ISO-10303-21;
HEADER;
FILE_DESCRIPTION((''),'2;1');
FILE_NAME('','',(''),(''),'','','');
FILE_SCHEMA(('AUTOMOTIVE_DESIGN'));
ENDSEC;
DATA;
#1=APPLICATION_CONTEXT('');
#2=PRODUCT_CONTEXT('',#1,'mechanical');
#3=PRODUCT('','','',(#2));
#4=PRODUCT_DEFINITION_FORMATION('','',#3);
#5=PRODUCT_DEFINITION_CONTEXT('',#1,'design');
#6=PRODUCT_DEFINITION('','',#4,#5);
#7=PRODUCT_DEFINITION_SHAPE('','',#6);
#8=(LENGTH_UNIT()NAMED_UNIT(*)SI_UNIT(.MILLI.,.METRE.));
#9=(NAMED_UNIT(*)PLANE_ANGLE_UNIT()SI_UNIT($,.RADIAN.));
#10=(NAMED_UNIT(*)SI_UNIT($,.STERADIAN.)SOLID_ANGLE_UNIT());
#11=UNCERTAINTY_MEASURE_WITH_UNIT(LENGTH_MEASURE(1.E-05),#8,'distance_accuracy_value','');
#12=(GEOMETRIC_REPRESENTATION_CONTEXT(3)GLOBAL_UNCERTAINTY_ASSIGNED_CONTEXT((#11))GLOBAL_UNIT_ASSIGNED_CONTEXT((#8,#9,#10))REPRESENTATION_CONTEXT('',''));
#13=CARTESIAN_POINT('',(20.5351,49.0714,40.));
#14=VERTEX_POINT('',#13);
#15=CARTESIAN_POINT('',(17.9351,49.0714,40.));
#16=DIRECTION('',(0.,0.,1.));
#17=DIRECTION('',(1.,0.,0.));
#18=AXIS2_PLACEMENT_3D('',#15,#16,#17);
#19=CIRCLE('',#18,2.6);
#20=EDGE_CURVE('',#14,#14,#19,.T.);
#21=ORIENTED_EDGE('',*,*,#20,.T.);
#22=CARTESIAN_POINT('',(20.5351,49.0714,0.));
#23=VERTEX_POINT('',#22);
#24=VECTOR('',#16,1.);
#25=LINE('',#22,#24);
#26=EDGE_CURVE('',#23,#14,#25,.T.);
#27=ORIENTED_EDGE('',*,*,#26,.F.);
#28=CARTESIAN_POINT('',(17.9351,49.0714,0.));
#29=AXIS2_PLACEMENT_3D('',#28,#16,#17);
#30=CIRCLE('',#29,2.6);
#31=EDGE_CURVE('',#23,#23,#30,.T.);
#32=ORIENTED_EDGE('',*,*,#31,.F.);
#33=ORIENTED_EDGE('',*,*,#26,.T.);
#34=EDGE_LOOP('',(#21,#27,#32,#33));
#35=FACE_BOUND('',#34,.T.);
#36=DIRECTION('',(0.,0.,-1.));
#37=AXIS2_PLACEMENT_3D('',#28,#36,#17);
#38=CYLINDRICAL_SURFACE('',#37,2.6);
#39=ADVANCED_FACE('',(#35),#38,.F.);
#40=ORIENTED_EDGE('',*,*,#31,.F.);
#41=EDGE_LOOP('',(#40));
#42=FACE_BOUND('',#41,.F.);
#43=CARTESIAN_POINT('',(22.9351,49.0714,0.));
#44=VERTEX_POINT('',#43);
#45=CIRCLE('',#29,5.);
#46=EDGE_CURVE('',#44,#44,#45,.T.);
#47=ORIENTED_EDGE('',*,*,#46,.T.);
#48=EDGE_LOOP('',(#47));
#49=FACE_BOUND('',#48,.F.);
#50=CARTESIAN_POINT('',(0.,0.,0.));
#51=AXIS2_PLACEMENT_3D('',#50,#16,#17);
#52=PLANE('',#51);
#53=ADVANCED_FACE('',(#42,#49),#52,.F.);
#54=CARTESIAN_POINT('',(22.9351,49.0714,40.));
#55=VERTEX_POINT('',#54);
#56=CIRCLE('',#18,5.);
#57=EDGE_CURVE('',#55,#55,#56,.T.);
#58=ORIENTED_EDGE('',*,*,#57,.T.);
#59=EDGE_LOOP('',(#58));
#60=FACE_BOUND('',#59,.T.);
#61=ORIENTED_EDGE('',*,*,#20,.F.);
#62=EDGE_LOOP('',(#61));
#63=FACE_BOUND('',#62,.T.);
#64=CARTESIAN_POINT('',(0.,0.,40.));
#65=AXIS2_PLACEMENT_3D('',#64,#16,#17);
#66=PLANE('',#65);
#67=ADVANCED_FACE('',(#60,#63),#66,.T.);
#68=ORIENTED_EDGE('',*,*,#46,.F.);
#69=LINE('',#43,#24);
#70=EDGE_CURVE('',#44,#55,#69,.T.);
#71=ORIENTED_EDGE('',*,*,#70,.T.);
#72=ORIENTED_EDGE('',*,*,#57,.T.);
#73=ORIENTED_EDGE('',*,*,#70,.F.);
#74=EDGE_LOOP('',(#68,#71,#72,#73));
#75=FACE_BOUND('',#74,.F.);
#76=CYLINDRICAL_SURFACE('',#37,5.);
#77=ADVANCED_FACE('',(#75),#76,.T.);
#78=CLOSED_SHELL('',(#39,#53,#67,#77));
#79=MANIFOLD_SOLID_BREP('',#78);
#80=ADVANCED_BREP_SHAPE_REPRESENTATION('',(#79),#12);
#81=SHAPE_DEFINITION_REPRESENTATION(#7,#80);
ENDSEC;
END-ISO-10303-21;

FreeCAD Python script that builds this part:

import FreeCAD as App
import Part
import Sketcher

V = App.Vector
Q = App.Units.Quantity

doc = App.newDocument("Part")
body = doc.addObject("PartDesign::Body", "Body")

sketch1 = body.newObject("Sketcher::SketchObject", "Sketch")
sketch1.AttachmentSupport = (doc.getObject("XY_Plane"), [""])
sketch1.MapMode = "FlatFace"
sketch1.addGeometry(Part.Circle(V(17.9351, 49.0714, 0), V(0, 0, 1), 5), False)
sketch1.addGeometry(Part.Circle(V(17.9351, 49.0714, 0), V(0, 0, 1), 2.6), False)
sketch1.addConstraint(Sketcher.Constraint("Coincident", 1, 3, 0, 3))
sketch1.addConstraint(Sketcher.Constraint("Diameter", 0, Q("10 mm")))
sketch1.addConstraint(Sketcher.Constraint("Diameter", 1, Q("5.2 mm")))
sketch1.addConstraint(Sketcher.Constraint("DistanceX", -1, 1, 0, 3, Q("17.935 mm")))
sketch1.addConstraint(Sketcher.Constraint("DistanceY", -1, 1, 0, 3, Q("49.0714 mm")))
pad1 = body.newObject("PartDesign::Pad", "Pad")
pad1.Profile = sketch1
pad1.Length = 40

doc.recompute()
